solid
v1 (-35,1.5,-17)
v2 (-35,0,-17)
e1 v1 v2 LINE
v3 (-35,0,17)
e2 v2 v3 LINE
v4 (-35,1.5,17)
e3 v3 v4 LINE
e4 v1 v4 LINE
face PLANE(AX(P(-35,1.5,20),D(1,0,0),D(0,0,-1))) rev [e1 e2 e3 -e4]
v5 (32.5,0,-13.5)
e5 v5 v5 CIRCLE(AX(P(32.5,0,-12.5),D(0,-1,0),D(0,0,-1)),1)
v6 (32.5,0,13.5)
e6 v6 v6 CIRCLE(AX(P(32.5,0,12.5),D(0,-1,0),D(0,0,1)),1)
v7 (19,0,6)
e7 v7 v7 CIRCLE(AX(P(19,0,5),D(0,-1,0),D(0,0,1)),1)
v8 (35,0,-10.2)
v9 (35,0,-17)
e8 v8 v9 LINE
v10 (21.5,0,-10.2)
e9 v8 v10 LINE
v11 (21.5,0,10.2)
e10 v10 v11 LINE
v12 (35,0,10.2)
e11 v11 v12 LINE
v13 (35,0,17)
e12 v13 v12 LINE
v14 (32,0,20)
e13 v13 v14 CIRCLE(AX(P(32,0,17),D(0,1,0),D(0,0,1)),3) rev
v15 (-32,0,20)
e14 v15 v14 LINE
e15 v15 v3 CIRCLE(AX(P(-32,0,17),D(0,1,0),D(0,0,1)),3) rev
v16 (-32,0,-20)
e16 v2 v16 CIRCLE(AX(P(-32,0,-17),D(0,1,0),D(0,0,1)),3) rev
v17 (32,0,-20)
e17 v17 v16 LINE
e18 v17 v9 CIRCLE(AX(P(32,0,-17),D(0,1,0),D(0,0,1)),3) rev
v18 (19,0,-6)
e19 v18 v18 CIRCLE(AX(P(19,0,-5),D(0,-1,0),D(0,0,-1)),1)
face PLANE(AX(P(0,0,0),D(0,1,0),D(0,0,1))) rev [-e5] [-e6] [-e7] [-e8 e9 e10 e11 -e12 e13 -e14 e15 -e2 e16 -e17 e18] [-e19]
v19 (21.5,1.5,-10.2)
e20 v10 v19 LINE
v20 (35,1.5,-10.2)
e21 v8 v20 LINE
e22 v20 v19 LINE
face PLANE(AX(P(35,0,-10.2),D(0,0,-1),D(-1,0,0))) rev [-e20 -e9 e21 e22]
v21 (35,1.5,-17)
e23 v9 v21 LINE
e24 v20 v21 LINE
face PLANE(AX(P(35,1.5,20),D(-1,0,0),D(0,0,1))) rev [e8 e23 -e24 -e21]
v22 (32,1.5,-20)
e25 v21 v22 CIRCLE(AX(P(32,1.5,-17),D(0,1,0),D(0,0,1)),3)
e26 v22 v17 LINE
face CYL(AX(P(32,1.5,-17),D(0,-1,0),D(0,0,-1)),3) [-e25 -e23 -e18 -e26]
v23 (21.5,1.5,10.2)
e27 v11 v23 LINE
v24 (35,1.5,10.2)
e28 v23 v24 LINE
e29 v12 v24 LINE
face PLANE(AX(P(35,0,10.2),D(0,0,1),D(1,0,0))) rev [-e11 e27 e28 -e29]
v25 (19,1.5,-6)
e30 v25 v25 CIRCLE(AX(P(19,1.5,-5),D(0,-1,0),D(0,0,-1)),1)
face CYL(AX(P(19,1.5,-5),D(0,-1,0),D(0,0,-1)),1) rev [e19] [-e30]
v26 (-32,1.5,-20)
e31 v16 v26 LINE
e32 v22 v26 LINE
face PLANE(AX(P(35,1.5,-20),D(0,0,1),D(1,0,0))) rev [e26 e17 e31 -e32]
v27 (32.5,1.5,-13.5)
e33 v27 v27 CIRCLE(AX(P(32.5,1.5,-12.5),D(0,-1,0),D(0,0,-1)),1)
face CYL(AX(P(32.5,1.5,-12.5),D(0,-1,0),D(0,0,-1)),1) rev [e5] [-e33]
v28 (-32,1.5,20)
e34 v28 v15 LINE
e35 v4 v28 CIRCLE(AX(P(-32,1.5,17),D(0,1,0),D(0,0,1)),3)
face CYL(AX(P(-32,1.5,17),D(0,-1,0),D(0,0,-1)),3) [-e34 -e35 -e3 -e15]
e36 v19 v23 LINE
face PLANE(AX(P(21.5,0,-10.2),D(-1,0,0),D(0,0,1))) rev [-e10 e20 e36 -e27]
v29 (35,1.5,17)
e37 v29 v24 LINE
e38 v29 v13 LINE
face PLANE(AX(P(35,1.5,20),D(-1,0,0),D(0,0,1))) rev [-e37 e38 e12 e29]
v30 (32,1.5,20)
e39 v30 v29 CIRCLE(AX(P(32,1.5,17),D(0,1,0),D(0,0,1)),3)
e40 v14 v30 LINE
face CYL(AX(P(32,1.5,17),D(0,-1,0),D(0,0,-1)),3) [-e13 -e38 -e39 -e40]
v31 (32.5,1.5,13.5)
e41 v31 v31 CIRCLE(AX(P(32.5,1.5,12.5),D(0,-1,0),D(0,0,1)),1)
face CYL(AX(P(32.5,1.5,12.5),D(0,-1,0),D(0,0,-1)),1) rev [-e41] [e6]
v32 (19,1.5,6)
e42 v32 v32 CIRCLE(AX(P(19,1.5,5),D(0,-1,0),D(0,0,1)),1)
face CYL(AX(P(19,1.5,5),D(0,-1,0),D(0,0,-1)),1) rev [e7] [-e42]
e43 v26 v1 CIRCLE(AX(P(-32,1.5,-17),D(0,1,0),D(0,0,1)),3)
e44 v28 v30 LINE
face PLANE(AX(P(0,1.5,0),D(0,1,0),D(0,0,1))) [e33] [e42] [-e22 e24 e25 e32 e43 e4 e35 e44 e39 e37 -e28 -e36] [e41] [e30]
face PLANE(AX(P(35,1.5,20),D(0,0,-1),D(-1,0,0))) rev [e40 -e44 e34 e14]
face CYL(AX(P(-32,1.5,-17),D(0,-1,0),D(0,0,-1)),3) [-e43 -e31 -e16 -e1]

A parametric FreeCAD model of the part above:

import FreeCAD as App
import Part
import Sketcher

V = App.Vector
Q = App.Units.Quantity


def edges_at(feature, points):
    """Names of the edges that pass closest to the given points."""
    edges = feature.Shape.Edges
    near = lambda p: min(range(len(edges)), key=lambda i: edges[i].distToShape(Part.Vertex(*p))[0])
    return sorted({f"Edge{near(p) + 1}" for p in points})

doc = App.newDocument("Part")
body = doc.addObject("PartDesign::Body", "Body")

sketch1 = doc.addObject("Sketcher::SketchObject", "Sketch")
body.addObject(sketch1)
sketch1.AttachmentSupport = (doc.XZ_Plane, [""])
sketch1.MapMode = "FlatFace"
sketch1.addGeometry([
    Part.LineSegment(V(-35, -20, 0), V(-35, 20, 0)),
    Part.LineSegment(V(-35, 20, 0), V(35, 20, 0)),
    Part.LineSegment(V(35, 20, 0), V(35, -20, 0)),
    Part.LineSegment(V(35, -20, 0), V(-35, -20, 0)),
], False)
sketch1.addConstraint([
    Sketcher.Constraint("Coincident", 0, 2, 1, 1),
    Sketcher.Constraint("Coincident", 1, 2, 2, 1),
    Sketcher.Constraint("Coincident", 2, 2, 3, 1),
    Sketcher.Constraint("Coincident", 3, 2, 0, 1),
    Sketcher.Constraint("Vertical", 0),
    Sketcher.Constraint("Horizontal", 1),
    Sketcher.Constraint("Vertical", 2),
    Sketcher.Constraint("Horizontal", 3),
    Sketcher.Constraint("Symmetric", 0, 2, 2, 2, -1, 1),
    Sketcher.Constraint("DistanceX", 1, 1, 1, 2, Q("70 mm")),
    Sketcher.Constraint("DistanceY", 0, 1, 0, 2, Q("40 mm")),
])
pad1 = doc.addObject("PartDesign::Pad", "Pad")
body.addObject(pad1)
pad1.Profile = sketch1
pad1.Length = 1.5
pad1.Reversed = True
doc.recompute()

fillet = doc.addObject("PartDesign::Fillet", "Fillet")
body.addObject(fillet)
fillet.Base = (pad1, edges_at(pad1, [
    (-35, 0.75, -20),
    (35, 0.75, -20),
    (35, 0.75, 20),
    (-35, 0.75, 20),
]))
fillet.Radius = 3

sketch2 = doc.addObject("Sketcher::SketchObject", "Sketch001")
body.addObject(sketch2)
sketch2.AttachmentSupport = (doc.XZ_Plane, [""])
sketch2.MapMode = "FlatFace"
sketch2.AttachmentOffset = App.Placement(V(0, 0, -1.5), App.Rotation())
sketch2.addGeometry([
    Part.LineSegment(V(22, -10, 0), V(22, 10, 0)),
    Part.LineSegment(V(22, 10, 0), V(35, 10, 0)),
    Part.LineSegment(V(35, 10, 0), V(35, -10, 0)),
    Part.LineSegment(V(35, -10, 0), V(22, -10, 0)),
], False)
sketch2.addConstraint([
    Sketcher.Constraint("Coincident", 0, 2, 1, 1),
    Sketcher.Constraint("Coincident", 1, 2, 2, 1),
    Sketcher.Constraint("Coincident", 2, 2, 3, 1),
    Sketcher.Constraint("Coincident", 3, 2, 0, 1),
    Sketcher.Constraint("Vertical", 0),
    Sketcher.Constraint("Horizontal", 1),
    Sketcher.Constraint("Vertical", 2),
    Sketcher.Constraint("Horizontal", 3),
    Sketcher.Constraint("DistanceX", 1, 1, 1, 2, Q("13.5 mm")),
    Sketcher.Constraint("DistanceY", 0, 1, 0, 2, Q("20.4 mm")),
    Sketcher.Constraint("DistanceX", -1, 1, 1, 2, Q("35 mm")),
    Sketcher.Constraint("DistanceY", -1, 1, 0, 2, Q("10.2 mm")),
])
pocket1 = doc.addObject("PartDesign::Pocket", "Pocket")
body.addObject(pocket1)
pocket1.Profile = sketch2
pocket1.Type = "ThroughAll"
pocket1.Reversed = True

sketch3 = doc.addObject("Sketcher::SketchObject", "Sketch002")
body.addObject(sketch3)
sketch3.AttachmentSupport = (doc.XZ_Plane, [""])
sketch3.MapMode = "FlatFace"
sketch3.addGeometry([
    Part.Circle(V(19, -5, 0), V(0, 0, 1), 1),
    Part.Circle(V(19, 5, 0), V(0, 0, 1), 1),
    Part.Circle(V(32.5, -12.5, 0), V(0, 0, 1), 1),
    Part.Circle(V(32.5, 12.5, 0), V(0, 0, 1), 1),
], False)
sketch3.addConstraint([
    Sketcher.Constraint("Equal", 0, 1),
    Sketcher.Constraint("Equal", 1, 2),
    Sketcher.Constraint("Equal", 2, 3),
    Sketcher.Constraint("Symmetric", 0, 3, 1, 3, -1),
    Sketcher.Constraint("Symmetric", 2, 3, 3, 3, -1),
    Sketcher.Constraint("Diameter", 0, Q("2 mm")),
    Sketcher.Constraint("DistanceX", -1, 1, 0, 3, Q("19 mm")),
    Sketcher.Constraint("DistanceY", 0, 3, -1, 1, Q("5 mm")),
    Sketcher.Constraint("DistanceY", 2, 3, 3, 3, Q("25 mm")),
    Sketcher.Constraint("DistanceX", -1, 1, 2, 3, Q("32.5 mm")),
])
pocket2 = doc.addObject("PartDesign::Pocket", "Pocket001")
body.addObject(pocket2)
pocket2.Profile = sketch3
pocket2.Type = "ThroughAll"

doc.recompute()
